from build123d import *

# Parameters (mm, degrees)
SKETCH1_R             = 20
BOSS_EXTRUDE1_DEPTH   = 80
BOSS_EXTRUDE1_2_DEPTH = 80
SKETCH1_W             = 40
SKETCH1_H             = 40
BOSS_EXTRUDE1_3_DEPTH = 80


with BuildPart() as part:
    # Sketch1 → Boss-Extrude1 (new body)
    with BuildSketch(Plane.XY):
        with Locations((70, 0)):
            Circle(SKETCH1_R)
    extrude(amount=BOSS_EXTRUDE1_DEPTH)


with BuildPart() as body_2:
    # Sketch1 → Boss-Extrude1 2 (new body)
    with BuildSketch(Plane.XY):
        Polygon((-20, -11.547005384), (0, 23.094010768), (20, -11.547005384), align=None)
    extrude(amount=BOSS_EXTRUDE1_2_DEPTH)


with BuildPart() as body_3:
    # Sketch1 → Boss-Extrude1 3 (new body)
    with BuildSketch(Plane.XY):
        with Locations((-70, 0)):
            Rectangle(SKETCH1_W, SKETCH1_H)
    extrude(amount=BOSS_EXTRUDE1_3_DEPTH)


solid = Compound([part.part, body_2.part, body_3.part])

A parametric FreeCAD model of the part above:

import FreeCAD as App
import Part
import Sketcher

V = App.Vector
Q = App.Units.Quantity


def add_polygon(sketch, points):
    """Adds a closed chain of lines whose ends are joined by coincident constraints."""
    first, n = sketch.GeometryCount, len(points)
    for a, b in zip(points, points[1:] + points[:1]):
        sketch.addGeometry(Part.LineSegment(App.Vector(*a, 0), App.Vector(*b, 0)), False)
    for i in range(n):
        sketch.addConstraint(Sketcher.Constraint("Coincident", first + i, 2, first + (i + 1) % n, 1))

doc = App.newDocument("Part")
params = doc.addObject("Spreadsheet::Sheet", "Params")
for row, (alias, value) in enumerate([
    ("sketch1_diameter", "40 mm"),
    ("pad1_length", "80 mm"),
    ("sketch2_width", "40 mm"),
    ("pad2_length", "80 mm"),
    ("sketch3_width", "40 mm"),
    ("pad3_length", "80 mm"),
], start=1):
    params.set(f"A{row}", alias)
    params.set(f"B{row}", "=" + value)
    params.setAlias(f"B{row}", alias)

body = doc.addObject("PartDesign::Body", "Body")

# Sketch on XY plane
sketch1 = body.newObject("Sketcher::SketchObject", "Sketch")
sketch1.AttachmentSupport = (doc.getObject("XY_Plane"), [""])
sketch1.MapMode = "FlatFace"
sketch1.addGeometry(Part.Circle(V(70, 0, 0), V(0, 0, 1), 20), False)
sketch1.addConstraint([
    Sketcher.Constraint("PointOnObject", 0, 3, -1),
    Sketcher.Constraint("Diameter", 0, 40.0),
    Sketcher.Constraint("DistanceX", -1, 1, 0, 3, 70.0),
])
sketch1.setExpression("Constraints[1]", "Params.sketch1_diameter")
pad1 = body.newObject("PartDesign::Pad", "Pad")
pad1.Profile = sketch1
pad1.setExpression("Length", "Params.pad1_length")
body2 = doc.addObject("PartDesign::Body", "Body001")

# Sketch on XY plane
sketch2 = body2.newObject("Sketcher::SketchObject", "Sketch001")
sketch2.AttachmentSupport = (doc.getObject("XY_Plane001"), [""])
sketch2.MapMode = "FlatFace"
add_polygon(sketch2, [(0, 23.094011), (-20, -11.547005), (20, -11.547005)])  # lines 0-2
sketch2.addConstraint([
    Sketcher.Constraint("Horizontal", 1),
    Sketcher.Constraint("PointOnObject", 2, 2, -2),
    Sketcher.Constraint("Equal", 0, 2),
    Sketcher.Constraint("DistanceX", 1, 1, 1, 2, 40.0),
    Sketcher.Constraint("Angle", 0, Q("-120 deg")),
    Sketcher.Constraint("DistanceY", -1, 1, 2, 2, 23.094011),
])
sketch2.setExpression("Constraints[6]", "Params.sketch2_width")
pad2 = body2.newObject("PartDesign::Pad", "Pad001")
pad2.Profile = sketch2
pad2.setExpression("Length", "Params.pad2_length")
body3 = doc.addObject("PartDesign::Body", "Body002")

# Sketch on XY plane
sketch3 = body3.newObject("Sketcher::SketchObject", "Sketch002")
sketch3.AttachmentSupport = (doc.getObject("XY_Plane002"), [""])
sketch3.MapMode = "FlatFace"
add_polygon(sketch3, [(-90, 20), (-90, -20), (-50, -20), (-50, 20)])  # lines 0-3
sketch3.addConstraint([
    Sketcher.Constraint("Vertical", 0),
    Sketcher.Constraint("Horizontal", 1),
    Sketcher.Constraint("Vertical", 2),
    Sketcher.Constraint("Horizontal", 3),
    Sketcher.Constraint("Equal", 3, 0),
    Sketcher.Constraint("DistanceX", 1, 1, 1, 2, 40.0),
    Sketcher.Constraint("DistanceX", 0, 2, -1, 1, 90.0),
    Sketcher.Constraint("DistanceY", 0, 2, -1, 1, 20.0),
])
sketch3.setExpression("Constraints[9]", "Params.sketch3_width")
pad3 = body3.newObject("PartDesign::Pad", "Pad002")
pad3.Profile = sketch3
pad3.setExpression("Length", "Params.pad3_length")

doc.recompute()
